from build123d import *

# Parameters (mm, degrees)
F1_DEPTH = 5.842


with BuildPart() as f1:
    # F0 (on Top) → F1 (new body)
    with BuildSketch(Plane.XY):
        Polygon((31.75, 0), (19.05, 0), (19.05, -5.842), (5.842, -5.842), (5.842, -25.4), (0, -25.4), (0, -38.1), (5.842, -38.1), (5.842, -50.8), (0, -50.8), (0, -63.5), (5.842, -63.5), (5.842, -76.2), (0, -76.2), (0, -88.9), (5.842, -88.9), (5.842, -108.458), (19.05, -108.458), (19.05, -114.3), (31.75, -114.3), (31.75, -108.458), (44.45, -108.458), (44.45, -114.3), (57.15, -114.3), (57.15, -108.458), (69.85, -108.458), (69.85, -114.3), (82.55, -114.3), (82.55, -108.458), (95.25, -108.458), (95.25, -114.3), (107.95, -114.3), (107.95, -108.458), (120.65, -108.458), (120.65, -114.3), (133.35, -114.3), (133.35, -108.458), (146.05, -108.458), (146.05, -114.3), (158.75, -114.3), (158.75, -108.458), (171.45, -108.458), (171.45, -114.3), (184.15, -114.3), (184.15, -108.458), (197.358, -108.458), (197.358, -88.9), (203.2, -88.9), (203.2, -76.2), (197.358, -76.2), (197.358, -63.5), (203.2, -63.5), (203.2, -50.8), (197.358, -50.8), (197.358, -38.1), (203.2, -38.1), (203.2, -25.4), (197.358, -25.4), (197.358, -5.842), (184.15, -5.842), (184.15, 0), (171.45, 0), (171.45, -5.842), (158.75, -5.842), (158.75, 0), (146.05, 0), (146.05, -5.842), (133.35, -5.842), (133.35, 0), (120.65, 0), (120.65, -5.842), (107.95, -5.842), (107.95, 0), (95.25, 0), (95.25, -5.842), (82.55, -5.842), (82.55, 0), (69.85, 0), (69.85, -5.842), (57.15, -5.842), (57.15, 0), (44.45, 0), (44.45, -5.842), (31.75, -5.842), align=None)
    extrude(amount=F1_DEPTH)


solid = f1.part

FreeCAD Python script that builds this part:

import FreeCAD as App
import Part
import Sketcher

V = App.Vector
Q = App.Units.Quantity

doc = App.newDocument("Part")
body = doc.addObject("PartDesign::Body", "Body")

sketch1 = body.newObject("Sketcher::SketchObject", "Sketch")
sketch1.AttachmentSupport = (doc.getObject("XY_Plane"), [""])
sketch1.MapMode = "FlatFace"
sketch1.addGeometry([
    Part.LineSegment(V(32, 0, 0), V(19, 0, 0)),
    Part.LineSegment(V(19, 0, 0), V(19, -6, 0)),
    Part.LineSegment(V(19, -6, 0), V(6, -6, 0)),
    Part.LineSegment(V(6, -6, 0), V(6, -25, 0)),
    Part.LineSegment(V(6, -25, 0), V(0, -25, 0)),
    Part.LineSegment(V(0, -25, 0), V(0, -38, 0)),
    Part.LineSegment(V(0, -38, 0), V(6, -38, 0)),
    Part.LineSegment(V(6, -38, 0), V(6, -51, 0)),
    Part.LineSegment(V(6, -51, 0), V(0, -51, 0)),
    Part.LineSegment(V(0, -51, 0), V(0, -64, 0)),
    Part.LineSegment(V(0, -64, 0), V(6, -64, 0)),
    Part.LineSegment(V(6, -64, 0), V(6, -76, 0)),
    Part.LineSegment(V(6, -76, 0), V(0, -76, 0)),
    Part.LineSegment(V(0, -76, 0), V(0, -89, 0)),
    Part.LineSegment(V(0, -89, 0), V(6, -89, 0)),
    Part.LineSegment(V(6, -89, 0), V(6, -108, 0)),
    Part.LineSegment(V(6, -108, 0), V(19, -108, 0)),
    Part.LineSegment(V(19, -108, 0), V(19, -114, 0)),
    Part.LineSegment(V(19, -114, 0), V(32, -114, 0)),
    Part.LineSegment(V(32, -114, 0), V(32, -108, 0)),
    Part.LineSegment(V(32, -108, 0), V(44, -108, 0)),
    Part.LineSegment(V(44, -108, 0), V(44, -114, 0)),
    Part.LineSegment(V(44, -114, 0), V(57, -114, 0)),
    Part.LineSegment(V(57, -114, 0), V(57, -108, 0)),
    Part.LineSegment(V(57, -108, 0), V(70, -108, 0)),
    Part.LineSegment(V(70, -108, 0), V(70, -114, 0)),
    Part.LineSegment(V(70, -114, 0), V(83, -114, 0)),
    Part.LineSegment(V(83, -114, 0), V(83, -108, 0)),
    Part.LineSegment(V(83, -108, 0), V(95, -108, 0)),
    Part.LineSegment(V(95, -108, 0), V(95, -114, 0)),
    Part.LineSegment(V(95, -114, 0), V(108, -114, 0)),
    Part.LineSegment(V(108, -114, 0), V(108, -108, 0)),
    Part.LineSegment(V(108, -108, 0), V(121, -108, 0)),
    Part.LineSegment(V(121, -108, 0), V(121, -114, 0)),
    Part.LineSegment(V(121, -114, 0), V(133, -114, 0)),
    Part.LineSegment(V(133, -114, 0), V(133, -108, 0)),
    Part.LineSegment(V(133, -108, 0), V(146, -108, 0)),
    Part.LineSegment(V(146, -108, 0), V(146, -114, 0)),
    Part.LineSegment(V(146, -114, 0), V(159, -114, 0)),
    Part.LineSegment(V(159, -114, 0), V(159, -108, 0)),
    Part.LineSegment(V(159, -108, 0), V(171, -108, 0)),
    Part.LineSegment(V(171, -108, 0), V(171, -114, 0)),
    Part.LineSegment(V(171, -114, 0), V(184, -114, 0)),
    Part.LineSegment(V(184, -114, 0), V(184, -108, 0)),
    Part.LineSegment(V(184, -108, 0), V(197, -108, 0)),
    Part.LineSegment(V(197, -108, 0), V(197, -89, 0)),
    Part.LineSegment(V(197, -89, 0), V(203, -89, 0)),
    Part.LineSegment(V(203, -89, 0), V(203, -76, 0)),
    Part.LineSegment(V(203, -76, 0), V(197, -76, 0)),
    Part.LineSegment(V(197, -76, 0), V(197, -64, 0)),
    Part.LineSegment(V(197, -64, 0), V(203, -64, 0)),
    Part.LineSegment(V(203, -64, 0), V(203, -51, 0)),
    Part.LineSegment(V(203, -51, 0), V(197, -51, 0)),
    Part.LineSegment(V(197, -51, 0), V(197, -38, 0)),
    Part.LineSegment(V(197, -38, 0), V(203, -38, 0)),
    Part.LineSegment(V(203, -38, 0), V(203, -25, 0)),
    Part.LineSegment(V(203, -25, 0), V(197, -25, 0)),
    Part.LineSegment(V(197, -25, 0), V(197, -6, 0)),
    Part.LineSegment(V(197, -6, 0), V(184, -6, 0)),
    Part.LineSegment(V(184, -6, 0), V(184, 0, 0)),
    Part.LineSegment(V(184, 0, 0), V(171, 0, 0)),
    Part.LineSegment(V(171, 0, 0), V(171, -6, 0)),
    Part.LineSegment(V(171, -6, 0), V(159, -6, 0)),
    Part.LineSegment(V(159, -6, 0), V(159, 0, 0)),
    Part.LineSegment(V(159, 0, 0), V(146, 0, 0)),
    Part.LineSegment(V(146, 0, 0), V(146, -6, 0)),
    Part.LineSegment(V(146, -6, 0), V(133, -6, 0)),
    Part.LineSegment(V(133, -6, 0), V(133, 0, 0)),
    Part.LineSegment(V(133, 0, 0), V(121, 0, 0)),
    Part.LineSegment(V(121, 0, 0), V(121, -6, 0)),
    Part.LineSegment(V(121, -6, 0), V(108, -6, 0)),
    Part.LineSegment(V(108, -6, 0), V(108, 0, 0)),
    Part.LineSegment(V(108, 0, 0), V(95, 0, 0)),
    Part.LineSegment(V(95, 0, 0), V(95, -6, 0)),
    Part.LineSegment(V(95, -6, 0), V(83, -6, 0)),
    Part.LineSegment(V(83, -6, 0), V(83, 0, 0)),
    Part.LineSegment(V(83, 0, 0), V(70, 0, 0)),
    Part.LineSegment(V(70, 0, 0), V(70, -6, 0)),
    Part.LineSegment(V(70, -6, 0), V(57, -6, 0)),
    Part.LineSegment(V(57, -6, 0), V(57, 0, 0)),
    Part.LineSegment(V(57, 0, 0), V(44, 0, 0)),
    Part.LineSegment(V(44, 0, 0), V(44, -6, 0)),
    Part.LineSegment(V(44, -6, 0), V(32, -6, 0)),
    Part.LineSegment(V(32, -6, 0), V(32, 0, 0)),
], False)
sketch1.addConstraint([
    Sketcher.Constraint("Coincident", 0, 2, 1, 1),
    Sketcher.Constraint("Coincident", 1, 2, 2, 1),
    Sketcher.Constraint("Coincident", 2, 2, 3, 1),
    Sketcher.Constraint("Coincident", 3, 2, 4, 1),
    Sketcher.Constraint("Coincident", 4, 2, 5, 1),
    Sketcher.Constraint("Coincident", 5, 2, 6, 1),
    Sketcher.Constraint("Coincident", 6, 2, 7, 1),
    Sketcher.Constraint("Coincident", 7, 2, 8, 1),
    Sketcher.Constraint("Coincident", 8, 2, 9, 1),
    Sketcher.Constraint("Coincident", 9, 2, 10, 1),
    Sketcher.Constraint("Coincident", 10, 2, 11, 1),
    Sketcher.Constraint("Coincident", 11, 2, 12, 1),
    Sketcher.Constraint("Coincident", 12, 2, 13, 1),
    Sketcher.Constraint("Coincident", 13, 2, 14, 1),
    Sketcher.Constraint("Coincident", 14, 2, 15, 1),
    Sketcher.Constraint("Coincident", 15, 2, 16, 1),
    Sketcher.Constraint("Coincident", 16, 2, 17, 1),
    Sketcher.Constraint("Coincident", 17, 2, 18, 1),
    Sketcher.Constraint("Coincident", 18, 2, 19, 1),
    Sketcher.Constraint("Coincident", 19, 2, 20, 1),
    Sketcher.Constraint("Coincident", 20, 2, 21, 1),
    Sketcher.Constraint("Coincident", 21, 2, 22, 1),
    Sketcher.Constraint("Coincident", 22, 2, 23, 1),
    Sketcher.Constraint("Coincident", 23, 2, 24, 1),
    Sketcher.Constraint("Coincident", 24, 2, 25, 1),
    Sketcher.Constraint("Coincident", 25, 2, 26, 1),
    Sketcher.Constraint("Coincident", 26, 2, 27, 1),
    Sketcher.Constraint("Coincident", 27, 2, 28, 1),
    Sketcher.Constraint("Coincident", 28, 2, 29, 1),
    Sketcher.Constraint("Coincident", 29, 2, 30, 1),
    Sketcher.Constraint("Coincident", 30, 2, 31, 1),
    Sketcher.Constraint("Coincident", 31, 2, 32, 1),
    Sketcher.Constraint("Coincident", 32, 2, 33, 1),
    Sketcher.Constraint("Coincident", 33, 2, 34, 1),
    Sketcher.Constraint("Coincident", 34, 2, 35, 1),
    Sketcher.Constraint("Coincident", 35, 2, 36, 1),
    Sketcher.Constraint("Coincident", 36, 2, 37, 1),
    Sketcher.Constraint("Coincident", 37, 2, 38, 1),
    Sketcher.Constraint("Coincident", 38, 2, 39, 1),
    Sketcher.Constraint("Coincident", 39, 2, 40, 1),
    Sketcher.Constraint("Coincident", 40, 2, 41, 1),
    Sketcher.Constraint("Coincident", 41, 2, 42, 1),
    Sketcher.Constraint("Coincident", 42, 2, 43, 1),
    Sketcher.Constraint("Coincident", 43, 2, 44, 1),
    Sketcher.Constraint("Coincident", 44, 2, 45, 1),
    Sketcher.Constraint("Coincident", 45, 2, 46, 1),
    Sketcher.Constraint("Coincident", 46, 2, 47, 1),
    Sketcher.Constraint("Coincident", 47, 2, 48, 1),
    Sketcher.Constraint("Coincident", 48, 2, 49, 1),
    Sketcher.Constraint("Coincident", 49, 2, 50, 1),
    Sketcher.Constraint("Coincident", 50, 2, 51, 1),
    Sketcher.Constraint("Coincident", 51, 2, 52, 1),
    Sketcher.Constraint("Coincident", 52, 2, 53, 1),
    Sketcher.Constraint("Coincident", 53, 2, 54, 1),
    Sketcher.Constraint("Coincident", 54, 2, 55, 1),
    Sketcher.Constraint("Coincident", 55, 2, 56, 1),
    Sketcher.Constraint("Coincident", 56, 2, 57, 1),
    Sketcher.Constraint("Coincident", 57, 2, 58, 1),
    Sketcher.Constraint("Coincident", 58, 2, 59, 1),
    Sketcher.Constraint("Coincident", 59, 2, 60, 1),
    Sketcher.Constraint("Coincident", 60, 2, 61, 1),
    Sketcher.Constraint("Coincident", 61, 2, 62, 1),
    Sketcher.Constraint("Coincident", 62, 2, 63, 1),
    Sketcher.Constraint("Coincident", 63, 2, 64, 1),
    Sketcher.Constraint("Coincident", 64, 2, 65, 1),
    Sketcher.Constraint("Coincident", 65, 2, 66, 1),
    Sketcher.Constraint("Coincident", 66, 2, 67, 1),
    Sketcher.Constraint("Coincident", 67, 2, 68, 1),
    Sketcher.Constraint("Coincident", 68, 2, 69, 1),
    Sketcher.Constraint("Coincident", 69, 2, 70, 1),
    Sketcher.Constraint("Coincident", 70, 2, 71, 1),
    Sketcher.Constraint("Coincident", 71, 2, 72, 1),
    Sketcher.Constraint("Coincident", 72, 2, 73, 1),
    Sketcher.Constraint("Coincident", 73, 2, 74, 1),
    Sketcher.Constraint("Coincident", 74, 2, 75, 1),
    Sketcher.Constraint("Coincident", 75, 2, 76, 1),
    Sketcher.Constraint("Coincident", 76, 2, 77, 1),
    Sketcher.Constraint("Coincident", 77, 2, 78, 1),
    Sketcher.Constraint("Coincident", 78, 2, 79, 1),
    Sketcher.Constraint("Coincident", 79, 2, 80, 1),
    Sketcher.Constraint("Coincident", 80, 2, 81, 1),
    Sketcher.Constraint("Coincident", 81, 2, 82, 1),
    Sketcher.Constraint("Coincident", 82, 2, 83, 1),
    Sketcher.Constraint("Coincident", 83, 2, 0, 1),
    Sketcher.Constraint("Horizontal", 0),
    Sketcher.Constraint("Vertical", 1),
    Sketcher.Constraint("Horizontal", 2),
    Sketcher.Constraint("Vertical", 3),
    Sketcher.Constraint("Horizontal", 4),
    Sketcher.Constraint("Vertical", 5),
    Sketcher.Constraint("Horizontal", 6),
    Sketcher.Constraint("Vertical", 7),
    Sketcher.Constraint("Horizontal", 8),
    Sketcher.Constraint("Vertical", 9),
    Sketcher.Constraint("Horizontal", 10),
    Sketcher.Constraint("Vertical", 11),
    Sketcher.Constraint("Horizontal", 12),
    Sketcher.Constraint("Vertical", 13),
    Sketcher.Constraint("Horizontal", 14),
    Sketcher.Constraint("Vertical", 15),
    Sketcher.Constraint("Horizontal", 16),
    Sketcher.Constraint("Vertical", 17),
    Sketcher.Constraint("Horizontal", 18),
    Sketcher.Constraint("Vertical", 19),
    Sketcher.Constraint("Horizontal", 20),
    Sketcher.Constraint("Vertical", 21),
    Sketcher.Constraint("Horizontal", 22),
    Sketcher.Constraint("Vertical", 23),
    Sketcher.Constraint("Horizontal", 24),
    Sketcher.Constraint("Vertical", 25),
    Sketcher.Constraint("Horizontal", 26),
    Sketcher.Constraint("Vertical", 27),
    Sketcher.Constraint("Horizontal", 28),
    Sketcher.Constraint("Vertical", 29),
    Sketcher.Constraint("Horizontal", 30),
    Sketcher.Constraint("Vertical", 31),
    Sketcher.Constraint("Horizontal", 32),
    Sketcher.Constraint("Vertical", 33),
    Sketcher.Constraint("Horizontal", 34),
    Sketcher.Constraint("Vertical", 35),
    Sketcher.Constraint("Horizontal", 36),
    Sketcher.Constraint("Vertical", 37),
    Sketcher.Constraint("Horizontal", 38),
    Sketcher.Constraint("Vertical", 39),
    Sketcher.Constraint("Horizontal", 40),
    Sketcher.Constraint("Vertical", 41),
    Sketcher.Constraint("Horizontal", 42),
    Sketcher.Constraint("Vertical", 43),
    Sketcher.Constraint("Horizontal", 44),
    Sketcher.Constraint("Vertical", 45),
    Sketcher.Constraint("Horizontal", 46),
    Sketcher.Constraint("Vertical", 47),
    Sketcher.Constraint("Horizontal", 48),
    Sketcher.Constraint("Vertical", 49),
    Sketcher.Constraint("Horizontal", 50),
    Sketcher.Constraint("Vertical", 51),
    Sketcher.Constraint("Horizontal", 52),
    Sketcher.Constraint("Vertical", 53),
    Sketcher.Constraint("Horizontal", 54),
    Sketcher.Constraint("Vertical", 55),
    Sketcher.Constraint("Horizontal", 56),
    Sketcher.Constraint("Vertical", 57),
    Sketcher.Constraint("Horizontal", 58),
    Sketcher.Constraint("Vertical", 59),
    Sketcher.Constraint("Horizontal", 60),
    Sketcher.Constraint("Vertical", 61),
    Sketcher.Constraint("Horizontal", 62),
    Sketcher.Constraint("Vertical", 63),
    Sketcher.Constraint("Horizontal", 64),
    Sketcher.Constraint("Vertical", 65),
    Sketcher.Constraint("Horizontal", 66),
    Sketcher.Constraint("Vertical", 67),
    Sketcher.Constraint("Horizontal", 68),
    Sketcher.Constraint("Vertical", 69),
    Sketcher.Constraint("Horizontal", 70),
    Sketcher.Constraint("Vertical", 71),
    Sketcher.Constraint("Horizontal", 72),
    Sketcher.Constraint("Vertical", 73),
    Sketcher.Constraint("Horizontal", 74),
    Sketcher.Constraint("Vertical", 75),
    Sketcher.Constraint("Horizontal", 76),
    Sketcher.Constraint("Vertical", 77),
    Sketcher.Constraint("Horizontal", 78),
    Sketcher.Constraint("Vertical", 79),
    Sketcher.Constraint("Horizontal", 80),
    Sketcher.Constraint("Vertical", 81),
    Sketcher.Constraint("Horizontal", 82),
    Sketcher.Constraint("Vertical", 83),
    Sketcher.Constraint("PointOnObject", 0, 2, -1),
    Sketcher.Constraint("PointOnObject", 4, 2, -2),
    Sketcher.Constraint("PointOnObject", 8, 2, -2),
    Sketcher.Constraint("PointOnObject", 12, 2, -2),
    Sketcher.Constraint("PointOnObject", 59, 2, -1),
    Sketcher.Constraint("PointOnObject", 63, 2, -1),
    Sketcher.Constraint("PointOnObject", 67, 2, -1),
    Sketcher.Constraint("PointOnObject", 71, 2, -1),
    Sketcher.Constraint("PointOnObject", 75, 2, -1),
    Sketcher.Constraint("PointOnObject", 79, 2, -1),
    Sketcher.Constraint("Horizontal", 16, 2, 19, 2),
    Sketcher.Constraint("Horizontal", 18, 2, 21, 2),
    Sketcher.Constraint("Horizontal", 20, 2, 23, 2),
    Sketcher.Constraint("Horizontal", 22, 2, 25, 2),
    Sketcher.Constraint("Horizontal", 24, 2, 27, 2),
    Sketcher.Constraint("Horizontal", 26, 2, 29, 2),
    Sketcher.Constraint("Horizontal", 28, 2, 31, 2),
    Sketcher.Constraint("Horizontal", 30, 2, 33, 2),
    Sketcher.Constraint("Horizontal", 32, 2, 35, 2),
    Sketcher.Constraint("Horizontal", 34, 2, 37, 2),
    Sketcher.Constraint("Horizontal", 36, 2, 39, 2),
    Sketcher.Constraint("Horizontal", 38, 2, 41, 2),
    Sketcher.Constraint("Horizontal", 40, 2, 43, 2),
    Sketcher.Constraint("Horizontal", 14, 2, 45, 2),
    Sketcher.Constraint("Horizontal", 12, 2, 47, 2),
    Sketcher.Constraint("Horizontal", 10, 2, 49, 2),
    Sketcher.Constraint("Horizontal", 8, 2, 51, 2),
    Sketcher.Constraint("Horizontal", 6, 2, 53, 2),
    Sketcher.Constraint("Horizontal", 4, 2, 55, 2),
    Sketcher.Constraint("Horizontal", 2, 2, 57, 2),
    Sketcher.Constraint("Horizontal", 58, 2, 61, 2),
    Sketcher.Constraint("Horizontal", 62, 2, 65, 2),
    Sketcher.Constraint("Horizontal", 66, 2, 69, 2),
    Sketcher.Constraint("Horizontal", 70, 2, 73, 2),
    Sketcher.Constraint("Horizontal", 74, 2, 77, 2),
    Sketcher.Constraint("Horizontal", 78, 2, 81, 2),
    Sketcher.Constraint("Vertical", 3, 2, 6, 2),
    Sketcher.Constraint("Vertical", 7, 2, 10, 2),
    Sketcher.Constraint("Vertical", 11, 2, 14, 2),
    Sketcher.Constraint("Vertical", 1, 2, 16, 2),
    Sketcher.Constraint("Vertical", 45, 2, 48, 2),
    Sketcher.Constraint("Vertical", 47, 2, 50, 2),
    Sketcher.Constraint("Vertical", 49, 2, 52, 2),
    Sketcher.Constraint("Vertical", 51, 2, 54, 2),
    Sketcher.Constraint("Vertical", 53, 2, 56, 2),
    Sketcher.Constraint("Vertical", 43, 2, 58, 2),
    Sketcher.Constraint("Vertical", 41, 2, 60, 2),
    Sketcher.Constraint("Vertical", 39, 2, 62, 2),
    Sketcher.Constraint("Vertical", 37, 2, 64, 2),
    Sketcher.Constraint("Vertical", 35, 2, 66, 2),
    Sketcher.Constraint("Vertical", 33, 2, 68, 2),
    Sketcher.Constraint("Vertical", 31, 2, 70, 2),
    Sketcher.Constraint("Vertical", 29, 2, 72, 2),
    Sketcher.Constraint("Vertical", 27, 2, 74, 2),
    Sketcher.Constraint("Vertical", 25, 2, 76, 2),
    Sketcher.Constraint("Vertical", 23, 2, 78, 2),
    Sketcher.Constraint("Vertical", 21, 2, 80, 2),
    Sketcher.Constraint("Vertical", 19, 2, 82, 2),
    Sketcher.Constraint("Equal", 18, 20),
    Sketcher.Constraint("Equal", 20, 22),
    Sketcher.Constraint("Equal", 22, 24),
    Sketcher.Constraint("Equal", 24, 26),
    Sketcher.Constraint("Equal", 26, 28),
    Sketcher.Constraint("Equal", 28, 30),
    Sketcher.Constraint("Equal", 30, 32),
    Sketcher.Constraint("Equal", 32, 34),
    Sketcher.Constraint("Equal", 34, 36),
    Sketcher.Constraint("Equal", 36, 38),
    Sketcher.Constraint("Equal", 38, 40),
    Sketcher.Constraint("Equal", 40, 42),
    Sketcher.Constraint("Equal", 16, 44),
    Sketcher.Constraint("Equal", 14, 46),
    Sketcher.Constraint("Equal", 56, 1),
    Sketcher.Constraint("Equal", 82, 5),
    Sketcher.Constraint("Equal", 5, 7),
    Sketcher.Constraint("Equal", 7, 9),
    Sketcher.Constraint("Equal", 9, 11),
    Sketcher.Constraint("Equal", 11, 13),
    Sketcher.Constraint("Equal", 3, 15),
    Sketcher.Constraint("Equal", 1, 17),
    Sketcher.Constraint("DistanceX", 0, 2, 0, 1, Q("0.5 in")),
    Sketcher.Constraint("DistanceY", 3, 2, -1, 1, Q("1 in")),
    Sketcher.Constraint("DistanceX", -1, 1, 46, 2, Q("8 in")),
    Sketcher.Constraint("DistanceX", 2, 2, 2, 1, Q("0.52 in")),
])
pad1 = body.newObject("PartDesign::Pad", "Pad")
pad1.Profile = sketch1
pad1.Length = Q("0.23 in")

doc.recompute()
